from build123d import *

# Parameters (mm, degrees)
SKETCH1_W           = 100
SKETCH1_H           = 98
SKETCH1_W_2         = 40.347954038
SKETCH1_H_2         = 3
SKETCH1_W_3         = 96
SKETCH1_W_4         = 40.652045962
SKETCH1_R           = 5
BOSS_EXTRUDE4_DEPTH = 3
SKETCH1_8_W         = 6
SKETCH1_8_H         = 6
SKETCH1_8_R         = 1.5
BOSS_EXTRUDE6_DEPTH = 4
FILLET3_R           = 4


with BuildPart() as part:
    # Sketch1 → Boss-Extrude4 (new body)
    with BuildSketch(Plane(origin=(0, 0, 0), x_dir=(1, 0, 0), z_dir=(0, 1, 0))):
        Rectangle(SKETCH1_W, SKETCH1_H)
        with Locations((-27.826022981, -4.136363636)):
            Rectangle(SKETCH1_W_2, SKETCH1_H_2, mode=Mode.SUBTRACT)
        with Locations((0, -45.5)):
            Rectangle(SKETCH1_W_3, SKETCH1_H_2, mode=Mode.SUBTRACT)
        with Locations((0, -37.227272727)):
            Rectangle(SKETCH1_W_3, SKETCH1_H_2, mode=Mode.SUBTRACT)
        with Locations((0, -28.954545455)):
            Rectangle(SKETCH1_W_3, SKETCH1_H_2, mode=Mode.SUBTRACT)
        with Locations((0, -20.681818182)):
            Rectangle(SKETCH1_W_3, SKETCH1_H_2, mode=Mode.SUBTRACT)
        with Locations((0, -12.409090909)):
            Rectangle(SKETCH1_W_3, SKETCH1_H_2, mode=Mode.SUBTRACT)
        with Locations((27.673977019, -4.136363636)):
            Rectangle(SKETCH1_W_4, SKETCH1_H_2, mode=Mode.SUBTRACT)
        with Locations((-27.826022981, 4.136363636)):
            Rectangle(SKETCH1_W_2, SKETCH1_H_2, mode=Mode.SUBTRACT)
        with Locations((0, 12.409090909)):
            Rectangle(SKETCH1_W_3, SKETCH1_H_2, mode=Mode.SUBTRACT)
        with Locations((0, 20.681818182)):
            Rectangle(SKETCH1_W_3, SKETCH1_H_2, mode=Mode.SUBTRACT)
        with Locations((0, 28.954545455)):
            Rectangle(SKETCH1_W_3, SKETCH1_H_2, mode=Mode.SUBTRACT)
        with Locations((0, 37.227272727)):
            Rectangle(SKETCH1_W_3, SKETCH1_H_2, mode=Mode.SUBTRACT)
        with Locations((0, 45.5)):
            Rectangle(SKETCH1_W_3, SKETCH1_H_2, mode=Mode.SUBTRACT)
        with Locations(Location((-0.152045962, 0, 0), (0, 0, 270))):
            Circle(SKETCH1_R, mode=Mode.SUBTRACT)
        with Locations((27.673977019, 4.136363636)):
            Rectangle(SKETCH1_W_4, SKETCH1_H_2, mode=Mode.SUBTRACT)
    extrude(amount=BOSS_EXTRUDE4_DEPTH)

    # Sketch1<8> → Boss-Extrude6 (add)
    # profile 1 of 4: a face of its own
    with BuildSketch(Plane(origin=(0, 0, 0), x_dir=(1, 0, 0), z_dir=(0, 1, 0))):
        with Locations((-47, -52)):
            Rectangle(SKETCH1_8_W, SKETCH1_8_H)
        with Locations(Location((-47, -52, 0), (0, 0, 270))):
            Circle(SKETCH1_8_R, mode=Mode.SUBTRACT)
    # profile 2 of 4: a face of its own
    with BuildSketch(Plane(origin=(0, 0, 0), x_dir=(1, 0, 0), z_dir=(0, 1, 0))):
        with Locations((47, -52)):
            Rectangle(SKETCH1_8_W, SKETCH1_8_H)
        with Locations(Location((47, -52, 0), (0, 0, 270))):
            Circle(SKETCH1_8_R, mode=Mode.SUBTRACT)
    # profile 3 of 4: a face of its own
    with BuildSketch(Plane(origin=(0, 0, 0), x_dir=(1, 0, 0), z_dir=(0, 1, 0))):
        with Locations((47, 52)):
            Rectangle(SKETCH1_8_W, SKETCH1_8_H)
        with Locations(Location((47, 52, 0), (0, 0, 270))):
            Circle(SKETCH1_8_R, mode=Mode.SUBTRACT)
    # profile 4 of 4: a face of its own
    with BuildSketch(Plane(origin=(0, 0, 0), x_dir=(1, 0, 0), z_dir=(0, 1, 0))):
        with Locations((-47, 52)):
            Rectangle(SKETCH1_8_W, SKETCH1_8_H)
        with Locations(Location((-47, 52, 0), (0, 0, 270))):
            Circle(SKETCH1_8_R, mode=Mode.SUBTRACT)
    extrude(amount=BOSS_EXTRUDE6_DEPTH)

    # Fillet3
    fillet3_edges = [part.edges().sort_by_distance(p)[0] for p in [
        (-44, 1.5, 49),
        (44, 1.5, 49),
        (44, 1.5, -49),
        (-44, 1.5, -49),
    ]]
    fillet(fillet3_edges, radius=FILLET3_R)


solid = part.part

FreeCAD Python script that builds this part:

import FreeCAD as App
import Part
import Sketcher
Q = App.Units.Quantity


def edges_at(feature, points):
    """Names of the edges that pass closest to the given points."""
    edges = feature.Shape.Edges
    near = lambda p: min(range(len(edges)), key=lambda i: edges[i].distToShape(Part.Vertex(*p))[0])
    return sorted({f"Edge{near(p) + 1}" for p in points})


def add_polygon(sketch, points):
    """Adds a closed chain of lines whose ends are joined by coincident constraints."""
    first, n = sketch.GeometryCount, len(points)
    for a, b in zip(points, points[1:] + points[:1]):
        sketch.addGeometry(Part.LineSegment(App.Vector(*a, 0), App.Vector(*b, 0)), False)
    for i in range(n):
        sketch.addConstraint(Sketcher.Constraint("Coincident", first + i, 2, first + (i + 1) % n, 1))

doc = App.newDocument("Part")
body = doc.addObject("PartDesign::Body", "Body")

sketch1 = body.newObject("Sketcher::SketchObject", "Sketch")
sketch1.AttachmentSupport = (doc.getObject("XZ_Plane"), [""])
sketch1.MapMode = "FlatFace"
add_polygon(sketch1, [(-50, -49), (-50, 49), (50, 49), (50, -49)])
add_polygon(sketch1, [(-7.7, 5.6), (-48, 5.6), (-48, 2.6), (-7.7, 2.6)])
add_polygon(sketch1, [(48, 47), (-48, 47), (-48, 44), (48, 44)])
add_polygon(sketch1, [(48, 38.7), (-48, 38.7), (-48, 35.7), (48, 35.7)])
add_polygon(sketch1, [(48, 30.5), (-48, 30.5), (-48, 27.5), (48, 27.5)])
add_polygon(sketch1, [(48, 22.2), (-48, 22.2), (-48, 19.2), (48, 19.2)])
add_polygon(sketch1, [(48, 13.9), (-48, 13.9), (-48, 10.9), (48, 10.9)])
add_polygon(sketch1, [(48, 5.6), (7.3, 5.6), (7.3, 2.6), (48, 2.6)])
add_polygon(sketch1, [(-7.7, -2.6), (-48, -2.6), (-48, -5.6), (-7.7, -5.6)])
sketch1.addGeometry(Part.Circle(App.Vector(-0.2, 0, 0), App.Vector(0, 0, 1), 5), False)
add_polygon(sketch1, [(48, -10.9), (-48, -10.9), (-48, -13.9), (48, -13.9)])
add_polygon(sketch1, [(48, -19.2), (-48, -19.2), (-48, -22.2), (48, -22.2)])
add_polygon(sketch1, [(48, -2.6), (7.3, -2.6), (7.3, -5.6), (48, -5.6)])
add_polygon(sketch1, [(48, -27.5), (-48, -27.5), (-48, -30.5), (48, -30.5)])
add_polygon(sketch1, [(48, -35.7), (-48, -35.7), (-48, -38.7), (48, -38.7)])
add_polygon(sketch1, [(48, -44), (-48, -44), (-48, -47), (48, -47)])
sketch1.addConstraint([
    Sketcher.Constraint("Vertical", 0),
    Sketcher.Constraint("Horizontal", 1),
    Sketcher.Constraint("Vertical", 2),
    Sketcher.Constraint("Horizontal", 3),
    Sketcher.Constraint("Horizontal", 4),
    Sketcher.Constraint("Vertical", 5),
    Sketcher.Constraint("Horizontal", 6),
    Sketcher.Constraint("Vertical", 7),
    Sketcher.Constraint("Horizontal", 8),
    Sketcher.Constraint("Vertical", 9),
    Sketcher.Constraint("Horizontal", 10),
    Sketcher.Constraint("Vertical", 11),
    Sketcher.Constraint("Horizontal", 12),
    Sketcher.Constraint("Vertical", 13),
    Sketcher.Constraint("Horizontal", 14),
    Sketcher.Constraint("Vertical", 15),
    Sketcher.Constraint("Horizontal", 16),
    Sketcher.Constraint("Vertical", 17),
    Sketcher.Constraint("Horizontal", 18),
    Sketcher.Constraint("Vertical", 19),
    Sketcher.Constraint("Horizontal", 20),
    Sketcher.Constraint("Vertical", 21),
    Sketcher.Constraint("Horizontal", 22),
    Sketcher.Constraint("Vertical", 23),
    Sketcher.Constraint("Horizontal", 24),
    Sketcher.Constraint("Vertical", 25),
    Sketcher.Constraint("Horizontal", 26),
    Sketcher.Constraint("Vertical", 27),
    Sketcher.Constraint("Horizontal", 28),
    Sketcher.Constraint("Vertical", 29),
    Sketcher.Constraint("Horizontal", 30),
    Sketcher.Constraint("Vertical", 31),
    Sketcher.Constraint("Horizontal", 32),
    Sketcher.Constraint("Vertical", 33),
    Sketcher.Constraint("Horizontal", 34),
    Sketcher.Constraint("Vertical", 35),
    Sketcher.Constraint("Horizontal", 37),
    Sketcher.Constraint("Vertical", 38),
    Sketcher.Constraint("Horizontal", 39),
    Sketcher.Constraint("Vertical", 40),
    Sketcher.Constraint("Horizontal", 41),
    Sketcher.Constraint("Vertical", 42),
    Sketcher.Constraint("Horizontal", 43),
    Sketcher.Constraint("Vertical", 44),
    Sketcher.Constraint("Horizontal", 45),
    Sketcher.Constraint("Vertical", 46),
    Sketcher.Constraint("Horizontal", 47),
    Sketcher.Constraint("Vertical", 48),
    Sketcher.Constraint("Horizontal", 49),
    Sketcher.Constraint("Vertical", 50),
    Sketcher.Constraint("Horizontal", 51),
    Sketcher.Constraint("Vertical", 52),
    Sketcher.Constraint("Horizontal", 53),
    Sketcher.Constraint("Vertical", 54),
    Sketcher.Constraint("Horizontal", 55),
    Sketcher.Constraint("Vertical", 56),
    Sketcher.Constraint("Horizontal", 57),
    Sketcher.Constraint("Vertical", 58),
    Sketcher.Constraint("Horizontal", 59),
    Sketcher.Constraint("Vertical", 60),
    Sketcher.Constraint("Symmetric", 0, 2, 2, 2, -1, 1),
    Sketcher.Constraint("Symmetric", 30, 2, 32, 2, -1, 1),
    Sketcher.Constraint("Symmetric", 26, 2, 37, 2, -1, 1),
    Sketcher.Constraint("Symmetric", 24, 2, 39, 2, -1, 1),
    Sketcher.Constraint("Symmetric", 22, 2, 41, 2, -1, 1),
    Sketcher.Constraint("Symmetric", 20, 2, 43, 2, -1, 1),
    Sketcher.Constraint("Symmetric", 4, 2, 47, 2, -1, 1),
    Sketcher.Constraint("Symmetric", 18, 2, 49, 2, -1, 1),
    Sketcher.Constraint("Symmetric", 16, 2, 51, 2, -1, 1),
    Sketcher.Constraint("Symmetric", 14, 2, 53, 2, -1, 1),
    Sketcher.Constraint("Symmetric", 12, 2, 55, 2, -1, 1),
    Sketcher.Constraint("Symmetric", 10, 2, 57, 2, -1, 1),
    Sketcher.Constraint("Symmetric", 8, 2, 59, 2, -1, 1),
    Sketcher.Constraint("Symmetric", 5, 2, 30, 2, -2),
    Sketcher.Constraint("Symmetric", 7, 2, 34, 2, -1),
    Sketcher.Constraint("Symmetric", 29, 2, 45, 2, -1),
    Sketcher.Constraint("PointOnObject", 36, 3, -1),
    Sketcher.Constraint("Horizontal", 7, 2, 28, 2),
    Sketcher.Constraint("Vertical", 5, 2, 8, 2),
    Sketcher.Constraint("Vertical", 9, 2, 12, 2),
    Sketcher.Constraint("Vertical", 11, 2, 14, 2),
    Sketcher.Constraint("Vertical", 13, 2, 16, 2),
    Sketcher.Constraint("Vertical", 15, 2, 18, 2),
    Sketcher.Constraint("Vertical", 17, 2, 20, 2),
    Sketcher.Constraint("Vertical", 19, 2, 22, 2),
    Sketcher.Constraint("Vertical", 21, 2, 24, 2),
    Sketcher.Constraint("Vertical", 23, 2, 26, 2),
    Sketcher.Constraint("Vertical", 27, 2, 30, 2),
    Sketcher.Constraint("Equal", 7, 9),
    Sketcher.Constraint("Equal", 11, 13),
    Sketcher.Constraint("Equal", 15, 17),
    Sketcher.Constraint("Equal", 19, 21),
    Sketcher.Constraint("Equal", 23, 25),
    Sketcher.Constraint("Diameter", 36, Q("10 mm")),
    Sketcher.Constraint("DistanceX", 1, 1, 1, 2, Q("100 mm")),
    Sketcher.Constraint("DistanceX", 8, 2, 8, 1, Q("96 mm")),
    Sketcher.Constraint("DistanceY", 0, 1, 0, 2, Q("98 mm")),
    Sketcher.Constraint("DistanceY", 5, 2, 5, 1, Q("3 mm")),
    Sketcher.Constraint("DistanceY", -1, 1, 8, 2, Q("47 mm")),
    Sketcher.Constraint("DistanceX", 4, 2, 4, 1, Q("40.347954 mm")),
    Sketcher.Constraint("DistanceX", 28, 2, 28, 1, Q("40.652046 mm")),
    Sketcher.Constraint("DistanceY", -1, 1, 20, 2, Q("22.181818 mm")),
    Sketcher.Constraint("DistanceY", -1, 1, 24, 2, Q("13.909091 mm")),
    Sketcher.Constraint("DistanceX", 36, 3, -1, 1, Q("0.152046 mm")),
    Sketcher.Constraint("DistanceY", -1, 1, 4, 2, Q("5.636364 mm")),
    Sketcher.Constraint("DistanceY", -1, 1, 12, 2, Q("38.727273 mm")),
    Sketcher.Constraint("DistanceY", -1, 1, 16, 2, Q("30.454545 mm")),
])
pad1 = body.newObject("PartDesign::Pad", "Pad")
pad1.Profile = sketch1
pad1.Length = 3
pad1.Reversed = True

sketch2 = body.newObject("Sketcher::SketchObject", "Sketch001")
sketch2.AttachmentSupport = (doc.getObject("XZ_Plane"), [""])
sketch2.MapMode = "FlatFace"
add_polygon(sketch2, [(-50, 49), (-50, 55), (-44, 55), (-44, 49)])
sketch2.addGeometry(Part.Circle(App.Vector(-47, 52, 0), App.Vector(0, 0, 1), 1.5), False)
add_polygon(sketch2, [(44, 49), (44, 55), (50, 55), (50, 49)])
sketch2.addGeometry(Part.Circle(App.Vector(47, 52, 0), App.Vector(0, 0, 1), 1.5), False)
add_polygon(sketch2, [(44, -55), (44, -49), (50, -49), (50, -55)])
sketch2.addGeometry(Part.Circle(App.Vector(47, -52, 0), App.Vector(0, 0, 1), 1.5), False)
add_polygon(sketch2, [(-50, -55), (-50, -49), (-44, -49), (-44, -55)])
sketch2.addGeometry(Part.Circle(App.Vector(-47, -52, 0), App.Vector(0, 0, 1), 1.5), False)
sketch2.addConstraint([
    Sketcher.Constraint("Vertical", 0),
    Sketcher.Constraint("Horizontal", 1),
    Sketcher.Constraint("Vertical", 2),
    Sketcher.Constraint("Horizontal", 3),
    Sketcher.Constraint("Vertical", 5),
    Sketcher.Constraint("Horizontal", 6),
    Sketcher.Constraint("Vertical", 7),
    Sketcher.Constraint("Horizontal", 8),
    Sketcher.Constraint("Vertical", 10),
    Sketcher.Constraint("Horizontal", 11),
    Sketcher.Constraint("Vertical", 12),
    Sketcher.Constraint("Horizontal", 13),
    Sketcher.Constraint("Vertical", 15),
    Sketcher.Constraint("Horizontal", 16),
    Sketcher.Constraint("Vertical", 17),
    Sketcher.Constraint("Horizontal", 18),
    Sketcher.Constraint("Equal", 4, 9),
    Sketcher.Constraint("Equal", 9, 14),
    Sketcher.Constraint("Equal", 14, 19),
    Sketcher.Constraint("Symmetric", 4, 3, 14, 3, -1, 1),
    Sketcher.Constraint("Symmetric", 9, 3, 19, 3, -1, 1),
    Sketcher.Constraint("Symmetric", 2, 2, 10, 2, -1, 1),
    Sketcher.Constraint("Symmetric", 0, 2, 12, 2, -1, 1),
    Sketcher.Constraint("Symmetric", 7, 2, 15, 2, -1, 1),
    Sketcher.Constraint("Symmetric", 5, 2, 17, 2, -1, 1),
    Sketcher.Constraint("Symmetric", 4, 3, 9, 3, -2),
    Sketcher.Constraint("Symmetric", 1, 2, 5, 2, -2),
    Sketcher.Constraint("Symmetric", 3, 2, 7, 2, -2),
    Sketcher.Constraint("Equal", 18, 0),
    Sketcher.Constraint("Diameter", 4, Q("3 mm")),
    Sketcher.Constraint("DistanceX", 1, 1, 1, 2, Q("6 mm")),
    Sketcher.Constraint("DistanceX", 4, 3, -1, 1, Q("47 mm")),
    Sketcher.Constraint("DistanceY", -1, 1, 4, 3, Q("52 mm")),
    Sketcher.Constraint("DistanceX", 0, 2, -1, 1, Q("50 mm")),
    Sketcher.Constraint("DistanceY", -1, 1, 0, 2, Q("55 mm")),
])
pad2 = body.newObject("PartDesign::Pad", "Pad001")
pad2.Profile = sketch2
pad2.Length = 4
pad2.Reversed = True
doc.recompute()

fillet = body.newObject("PartDesign::Fillet", "Fillet")
fillet.Base = (pad2, edges_at(pad2, [
    (-44, 1.5, 49),
    (44, 1.5, 49),
    (44, 1.5, -49),
    (-44, 1.5, -49),
]))
fillet.Radius = 4

doc.recompute()
